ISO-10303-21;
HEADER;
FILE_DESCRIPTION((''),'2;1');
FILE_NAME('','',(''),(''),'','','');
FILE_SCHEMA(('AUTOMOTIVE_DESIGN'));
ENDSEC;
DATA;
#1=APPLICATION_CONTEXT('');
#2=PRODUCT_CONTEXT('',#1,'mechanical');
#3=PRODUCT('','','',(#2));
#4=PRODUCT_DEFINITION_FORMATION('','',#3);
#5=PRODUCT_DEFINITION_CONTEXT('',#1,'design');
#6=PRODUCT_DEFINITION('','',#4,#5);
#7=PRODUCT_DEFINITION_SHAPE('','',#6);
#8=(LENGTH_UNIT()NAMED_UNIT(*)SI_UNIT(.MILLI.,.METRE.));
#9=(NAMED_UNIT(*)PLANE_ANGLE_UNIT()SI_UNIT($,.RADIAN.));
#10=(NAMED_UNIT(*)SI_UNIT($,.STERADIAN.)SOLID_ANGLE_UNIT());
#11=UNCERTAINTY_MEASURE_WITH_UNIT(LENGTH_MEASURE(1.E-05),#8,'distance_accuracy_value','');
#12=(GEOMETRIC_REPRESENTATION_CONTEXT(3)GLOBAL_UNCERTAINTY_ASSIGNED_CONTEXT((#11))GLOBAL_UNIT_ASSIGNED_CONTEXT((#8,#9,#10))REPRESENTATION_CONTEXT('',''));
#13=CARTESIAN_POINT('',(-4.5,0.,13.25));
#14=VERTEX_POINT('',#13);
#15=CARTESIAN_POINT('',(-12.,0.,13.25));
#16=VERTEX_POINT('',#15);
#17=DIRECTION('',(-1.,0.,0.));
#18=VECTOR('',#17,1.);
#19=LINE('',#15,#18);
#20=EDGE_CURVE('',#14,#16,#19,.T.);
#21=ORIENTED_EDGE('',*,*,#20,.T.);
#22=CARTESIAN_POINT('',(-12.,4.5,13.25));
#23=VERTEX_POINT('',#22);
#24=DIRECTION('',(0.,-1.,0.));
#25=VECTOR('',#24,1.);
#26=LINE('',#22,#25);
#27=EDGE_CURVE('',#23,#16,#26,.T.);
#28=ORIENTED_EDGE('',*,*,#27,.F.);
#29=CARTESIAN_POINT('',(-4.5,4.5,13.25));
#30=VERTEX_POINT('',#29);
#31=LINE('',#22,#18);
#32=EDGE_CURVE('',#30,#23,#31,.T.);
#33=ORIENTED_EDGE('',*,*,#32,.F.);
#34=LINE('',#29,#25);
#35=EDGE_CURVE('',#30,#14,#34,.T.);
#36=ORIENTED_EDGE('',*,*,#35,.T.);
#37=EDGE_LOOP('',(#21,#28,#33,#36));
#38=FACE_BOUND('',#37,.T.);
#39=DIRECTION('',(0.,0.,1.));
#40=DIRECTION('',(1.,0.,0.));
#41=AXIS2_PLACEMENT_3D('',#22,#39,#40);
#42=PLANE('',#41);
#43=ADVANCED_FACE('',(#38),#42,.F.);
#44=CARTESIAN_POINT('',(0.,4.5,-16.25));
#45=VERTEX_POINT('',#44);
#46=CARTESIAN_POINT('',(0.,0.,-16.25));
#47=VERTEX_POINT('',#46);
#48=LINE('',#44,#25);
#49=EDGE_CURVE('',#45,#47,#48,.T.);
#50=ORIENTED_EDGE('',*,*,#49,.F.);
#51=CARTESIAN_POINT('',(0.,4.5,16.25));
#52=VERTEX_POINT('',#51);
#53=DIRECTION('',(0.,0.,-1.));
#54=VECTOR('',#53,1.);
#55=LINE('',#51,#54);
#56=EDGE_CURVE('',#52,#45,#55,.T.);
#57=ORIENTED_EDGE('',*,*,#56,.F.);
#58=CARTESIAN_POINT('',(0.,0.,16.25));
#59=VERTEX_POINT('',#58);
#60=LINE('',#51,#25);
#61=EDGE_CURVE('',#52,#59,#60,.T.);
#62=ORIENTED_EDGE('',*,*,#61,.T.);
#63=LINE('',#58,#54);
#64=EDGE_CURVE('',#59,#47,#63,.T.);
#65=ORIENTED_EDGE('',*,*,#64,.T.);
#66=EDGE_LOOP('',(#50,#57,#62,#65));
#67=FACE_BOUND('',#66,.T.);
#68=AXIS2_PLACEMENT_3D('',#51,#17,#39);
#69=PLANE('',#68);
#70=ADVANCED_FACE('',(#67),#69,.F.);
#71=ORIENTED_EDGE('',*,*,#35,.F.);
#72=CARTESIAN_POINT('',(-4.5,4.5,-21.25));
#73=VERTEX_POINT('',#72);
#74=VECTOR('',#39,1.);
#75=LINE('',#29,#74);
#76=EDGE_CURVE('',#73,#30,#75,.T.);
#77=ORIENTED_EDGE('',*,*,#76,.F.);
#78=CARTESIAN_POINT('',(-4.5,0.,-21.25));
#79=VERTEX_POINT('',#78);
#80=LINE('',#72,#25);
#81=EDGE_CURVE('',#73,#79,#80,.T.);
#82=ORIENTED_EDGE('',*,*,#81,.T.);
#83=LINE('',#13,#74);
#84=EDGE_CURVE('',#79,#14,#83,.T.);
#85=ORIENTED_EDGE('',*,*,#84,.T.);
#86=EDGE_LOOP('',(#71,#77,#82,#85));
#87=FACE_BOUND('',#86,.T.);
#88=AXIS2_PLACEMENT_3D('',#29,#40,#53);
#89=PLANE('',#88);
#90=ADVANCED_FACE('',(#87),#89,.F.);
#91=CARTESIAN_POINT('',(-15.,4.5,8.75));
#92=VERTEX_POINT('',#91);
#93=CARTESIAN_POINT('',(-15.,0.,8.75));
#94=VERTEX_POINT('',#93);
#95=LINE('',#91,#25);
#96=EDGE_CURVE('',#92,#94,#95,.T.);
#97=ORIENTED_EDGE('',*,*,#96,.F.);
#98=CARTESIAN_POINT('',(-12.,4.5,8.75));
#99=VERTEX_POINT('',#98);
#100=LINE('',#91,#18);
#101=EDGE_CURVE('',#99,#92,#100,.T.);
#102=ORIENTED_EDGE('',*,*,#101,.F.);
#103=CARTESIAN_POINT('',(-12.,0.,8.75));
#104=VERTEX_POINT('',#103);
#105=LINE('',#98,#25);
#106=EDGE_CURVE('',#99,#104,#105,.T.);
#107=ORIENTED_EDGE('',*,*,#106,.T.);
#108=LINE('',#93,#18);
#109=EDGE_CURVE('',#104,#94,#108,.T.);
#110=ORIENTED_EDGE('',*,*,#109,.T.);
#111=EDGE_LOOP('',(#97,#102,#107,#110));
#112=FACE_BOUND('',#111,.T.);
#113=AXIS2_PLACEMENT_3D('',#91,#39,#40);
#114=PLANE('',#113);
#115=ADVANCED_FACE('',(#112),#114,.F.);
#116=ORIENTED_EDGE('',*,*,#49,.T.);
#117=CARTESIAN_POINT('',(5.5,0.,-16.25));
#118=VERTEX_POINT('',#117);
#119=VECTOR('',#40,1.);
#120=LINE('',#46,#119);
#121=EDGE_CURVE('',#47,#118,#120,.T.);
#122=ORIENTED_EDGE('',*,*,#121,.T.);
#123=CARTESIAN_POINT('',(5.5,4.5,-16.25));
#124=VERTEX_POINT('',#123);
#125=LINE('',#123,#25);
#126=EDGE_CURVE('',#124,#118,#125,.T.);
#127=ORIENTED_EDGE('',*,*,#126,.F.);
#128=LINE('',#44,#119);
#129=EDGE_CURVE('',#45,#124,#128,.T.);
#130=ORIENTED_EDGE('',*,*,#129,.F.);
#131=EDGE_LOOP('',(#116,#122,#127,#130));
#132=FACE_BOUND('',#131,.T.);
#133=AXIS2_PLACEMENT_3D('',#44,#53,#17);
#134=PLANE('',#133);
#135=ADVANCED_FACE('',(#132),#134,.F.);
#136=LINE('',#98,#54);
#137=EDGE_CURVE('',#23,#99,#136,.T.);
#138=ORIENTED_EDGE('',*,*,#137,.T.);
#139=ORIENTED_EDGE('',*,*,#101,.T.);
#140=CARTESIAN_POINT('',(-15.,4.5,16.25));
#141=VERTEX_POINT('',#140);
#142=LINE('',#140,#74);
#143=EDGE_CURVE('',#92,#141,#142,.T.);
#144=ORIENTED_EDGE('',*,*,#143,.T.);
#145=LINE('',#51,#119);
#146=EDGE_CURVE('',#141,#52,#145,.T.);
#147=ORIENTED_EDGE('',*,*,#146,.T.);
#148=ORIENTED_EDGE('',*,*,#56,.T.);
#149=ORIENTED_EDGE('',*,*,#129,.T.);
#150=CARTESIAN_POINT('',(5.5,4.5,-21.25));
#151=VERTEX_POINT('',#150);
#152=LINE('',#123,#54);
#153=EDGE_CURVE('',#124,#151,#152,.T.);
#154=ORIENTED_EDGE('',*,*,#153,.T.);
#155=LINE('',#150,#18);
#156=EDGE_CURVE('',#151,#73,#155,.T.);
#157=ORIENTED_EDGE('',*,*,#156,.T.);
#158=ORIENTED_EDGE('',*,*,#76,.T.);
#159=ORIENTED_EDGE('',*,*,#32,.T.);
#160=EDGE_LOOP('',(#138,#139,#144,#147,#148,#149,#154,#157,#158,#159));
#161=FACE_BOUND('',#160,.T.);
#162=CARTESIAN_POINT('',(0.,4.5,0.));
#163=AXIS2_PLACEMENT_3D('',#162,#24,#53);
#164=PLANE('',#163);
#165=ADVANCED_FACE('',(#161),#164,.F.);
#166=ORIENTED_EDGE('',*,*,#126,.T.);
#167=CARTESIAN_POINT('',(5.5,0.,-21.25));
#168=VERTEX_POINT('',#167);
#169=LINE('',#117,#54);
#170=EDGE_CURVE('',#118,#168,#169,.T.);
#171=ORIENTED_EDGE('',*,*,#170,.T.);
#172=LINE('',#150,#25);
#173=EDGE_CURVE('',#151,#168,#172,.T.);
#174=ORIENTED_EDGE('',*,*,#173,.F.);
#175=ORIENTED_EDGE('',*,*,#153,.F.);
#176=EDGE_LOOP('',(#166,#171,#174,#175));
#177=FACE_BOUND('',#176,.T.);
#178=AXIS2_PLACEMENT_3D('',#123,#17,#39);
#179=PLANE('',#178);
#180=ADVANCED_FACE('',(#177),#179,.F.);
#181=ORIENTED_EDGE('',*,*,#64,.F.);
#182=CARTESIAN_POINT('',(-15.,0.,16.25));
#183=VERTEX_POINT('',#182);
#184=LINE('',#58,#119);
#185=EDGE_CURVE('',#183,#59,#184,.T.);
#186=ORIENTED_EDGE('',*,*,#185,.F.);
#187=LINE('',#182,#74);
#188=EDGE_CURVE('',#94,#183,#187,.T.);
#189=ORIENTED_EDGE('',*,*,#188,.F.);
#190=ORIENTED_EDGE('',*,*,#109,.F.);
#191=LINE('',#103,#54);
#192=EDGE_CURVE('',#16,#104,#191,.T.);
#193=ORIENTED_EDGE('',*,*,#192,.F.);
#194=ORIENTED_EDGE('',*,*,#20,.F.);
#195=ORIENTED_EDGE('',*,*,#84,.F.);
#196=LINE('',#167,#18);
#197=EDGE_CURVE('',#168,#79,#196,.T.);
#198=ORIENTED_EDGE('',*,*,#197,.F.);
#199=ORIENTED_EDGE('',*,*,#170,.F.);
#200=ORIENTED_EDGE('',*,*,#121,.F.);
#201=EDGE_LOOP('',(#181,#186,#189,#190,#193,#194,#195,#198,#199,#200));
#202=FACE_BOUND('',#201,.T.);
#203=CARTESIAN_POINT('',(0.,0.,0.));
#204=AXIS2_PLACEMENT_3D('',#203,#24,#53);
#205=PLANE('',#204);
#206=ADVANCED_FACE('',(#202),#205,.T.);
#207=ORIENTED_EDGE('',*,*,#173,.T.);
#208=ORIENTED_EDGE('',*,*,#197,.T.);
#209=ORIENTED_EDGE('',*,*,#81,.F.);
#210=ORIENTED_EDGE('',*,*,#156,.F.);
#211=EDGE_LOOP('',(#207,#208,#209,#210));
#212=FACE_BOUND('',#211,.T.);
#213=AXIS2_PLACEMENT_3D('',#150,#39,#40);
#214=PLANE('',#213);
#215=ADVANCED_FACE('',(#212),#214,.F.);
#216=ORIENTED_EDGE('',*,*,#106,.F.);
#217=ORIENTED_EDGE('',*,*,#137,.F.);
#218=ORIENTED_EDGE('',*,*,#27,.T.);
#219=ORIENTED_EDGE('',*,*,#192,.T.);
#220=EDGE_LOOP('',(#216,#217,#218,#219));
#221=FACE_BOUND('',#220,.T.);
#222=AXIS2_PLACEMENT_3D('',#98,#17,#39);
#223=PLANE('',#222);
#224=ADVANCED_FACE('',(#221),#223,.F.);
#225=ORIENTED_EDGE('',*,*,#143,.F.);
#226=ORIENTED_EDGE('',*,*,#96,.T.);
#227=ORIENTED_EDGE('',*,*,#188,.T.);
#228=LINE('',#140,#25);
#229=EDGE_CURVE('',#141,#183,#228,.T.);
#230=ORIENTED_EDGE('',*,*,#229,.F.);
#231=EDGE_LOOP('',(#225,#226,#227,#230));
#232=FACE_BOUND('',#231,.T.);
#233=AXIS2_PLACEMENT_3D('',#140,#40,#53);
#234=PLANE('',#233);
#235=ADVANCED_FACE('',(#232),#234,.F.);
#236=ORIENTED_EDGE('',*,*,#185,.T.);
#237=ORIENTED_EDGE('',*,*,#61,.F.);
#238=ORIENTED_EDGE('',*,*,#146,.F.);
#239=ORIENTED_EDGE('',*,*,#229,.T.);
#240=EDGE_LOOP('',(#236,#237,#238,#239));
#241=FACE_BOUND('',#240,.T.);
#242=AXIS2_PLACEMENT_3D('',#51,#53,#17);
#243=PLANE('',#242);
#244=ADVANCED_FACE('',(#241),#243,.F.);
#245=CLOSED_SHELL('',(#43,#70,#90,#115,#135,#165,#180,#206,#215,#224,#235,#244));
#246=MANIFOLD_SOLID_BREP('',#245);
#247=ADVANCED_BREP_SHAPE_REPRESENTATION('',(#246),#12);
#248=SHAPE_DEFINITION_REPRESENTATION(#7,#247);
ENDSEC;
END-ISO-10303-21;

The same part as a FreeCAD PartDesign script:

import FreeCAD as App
import Part
import Sketcher
from FreeCAD import Vector


def add_polygon(sketch, points):
    """Adds a closed chain of lines whose ends are joined by coincident constraints."""
    first, n = sketch.GeometryCount, len(points)
    for a, b in zip(points, points[1:] + points[:1]):
        sketch.addGeometry(Part.LineSegment(App.Vector(*a, 0), App.Vector(*b, 0)), False)
    for i in range(n):
        sketch.addConstraint(Sketcher.Constraint("Coincident", first + i, 2, first + (i + 1) % n, 1))

doc = App.newDocument("Part")
body = doc.addObject("PartDesign::Body", "Body")

sketch1 = body.newObject("Sketcher::SketchObject", "Sketch")
sketch1.AttachmentSupport = (doc.getObject("XZ_Plane"), [""])
sketch1.MapMode = "FlatFace"
add_polygon(sketch1, [(-15, 16.2), (0, 16.2), (0, -16.2), (5.5, -16.2), (5.5, -21.2), (-4.5, -21.2), (-4.5, 13.2), (-12, 13.2), (-12, 8.8), (-15, 8.8)])
sketch1.addConstraint(Sketcher.Constraint("Horizontal", 0))
sketch1.addConstraint(Sketcher.Constraint("Vertical", 1))
sketch1.addConstraint(Sketcher.Constraint("Horizontal", 2))
sketch1.addConstraint(Sketcher.Constraint("Vertical", 3))
sketch1.addConstraint(Sketcher.Constraint("Horizontal", 4))
sketch1.addConstraint(Sketcher.Constraint("Vertical", 5))
sketch1.addConstraint(Sketcher.Constraint("Horizontal", 6))
sketch1.addConstraint(Sketcher.Constraint("Vertical", 7))
sketch1.addConstraint(Sketcher.Constraint("Horizontal", 8))
sketch1.addConstraint(Sketcher.Constraint("Vertical", 9))
sketch1.addConstraint(Sketcher.Constraint("Symmetric", 0, 2, 1, 2, -1, 1))
sketch1.addConstraint(Sketcher.Constraint("Equal", 6, 9))
sketch1.addConstraint(Sketcher.Constraint("DistanceX", 0, 1, 0, 2, 15.0))
sketch1.addConstraint(Sketcher.Constraint("DistanceX", 4, 2, 4, 1, 10.0))
sketch1.addConstraint(Sketcher.Constraint("DistanceX", 8, 2, 8, 1, 3.0))
sketch1.addConstraint(Sketcher.Constraint("DistanceY", 3, 2, 3, 1, 5.0))
sketch1.addConstraint(Sketcher.Constraint("DistanceX", 2, 1, 2, 2, 5.5))
sketch1.addConstraint(Sketcher.Constraint("DistanceY", 1, 2, 1, 1, 32.5))
sketch1.addConstraint(Sketcher.Constraint("DistanceY", 5, 1, 5, 2, 34.5))
pad1 = body.newObject("PartDesign::Pad", "Pad")
pad1.Profile = sketch1
pad1.Length = 4.5
pad1.Reversed = True

doc.recompute()
